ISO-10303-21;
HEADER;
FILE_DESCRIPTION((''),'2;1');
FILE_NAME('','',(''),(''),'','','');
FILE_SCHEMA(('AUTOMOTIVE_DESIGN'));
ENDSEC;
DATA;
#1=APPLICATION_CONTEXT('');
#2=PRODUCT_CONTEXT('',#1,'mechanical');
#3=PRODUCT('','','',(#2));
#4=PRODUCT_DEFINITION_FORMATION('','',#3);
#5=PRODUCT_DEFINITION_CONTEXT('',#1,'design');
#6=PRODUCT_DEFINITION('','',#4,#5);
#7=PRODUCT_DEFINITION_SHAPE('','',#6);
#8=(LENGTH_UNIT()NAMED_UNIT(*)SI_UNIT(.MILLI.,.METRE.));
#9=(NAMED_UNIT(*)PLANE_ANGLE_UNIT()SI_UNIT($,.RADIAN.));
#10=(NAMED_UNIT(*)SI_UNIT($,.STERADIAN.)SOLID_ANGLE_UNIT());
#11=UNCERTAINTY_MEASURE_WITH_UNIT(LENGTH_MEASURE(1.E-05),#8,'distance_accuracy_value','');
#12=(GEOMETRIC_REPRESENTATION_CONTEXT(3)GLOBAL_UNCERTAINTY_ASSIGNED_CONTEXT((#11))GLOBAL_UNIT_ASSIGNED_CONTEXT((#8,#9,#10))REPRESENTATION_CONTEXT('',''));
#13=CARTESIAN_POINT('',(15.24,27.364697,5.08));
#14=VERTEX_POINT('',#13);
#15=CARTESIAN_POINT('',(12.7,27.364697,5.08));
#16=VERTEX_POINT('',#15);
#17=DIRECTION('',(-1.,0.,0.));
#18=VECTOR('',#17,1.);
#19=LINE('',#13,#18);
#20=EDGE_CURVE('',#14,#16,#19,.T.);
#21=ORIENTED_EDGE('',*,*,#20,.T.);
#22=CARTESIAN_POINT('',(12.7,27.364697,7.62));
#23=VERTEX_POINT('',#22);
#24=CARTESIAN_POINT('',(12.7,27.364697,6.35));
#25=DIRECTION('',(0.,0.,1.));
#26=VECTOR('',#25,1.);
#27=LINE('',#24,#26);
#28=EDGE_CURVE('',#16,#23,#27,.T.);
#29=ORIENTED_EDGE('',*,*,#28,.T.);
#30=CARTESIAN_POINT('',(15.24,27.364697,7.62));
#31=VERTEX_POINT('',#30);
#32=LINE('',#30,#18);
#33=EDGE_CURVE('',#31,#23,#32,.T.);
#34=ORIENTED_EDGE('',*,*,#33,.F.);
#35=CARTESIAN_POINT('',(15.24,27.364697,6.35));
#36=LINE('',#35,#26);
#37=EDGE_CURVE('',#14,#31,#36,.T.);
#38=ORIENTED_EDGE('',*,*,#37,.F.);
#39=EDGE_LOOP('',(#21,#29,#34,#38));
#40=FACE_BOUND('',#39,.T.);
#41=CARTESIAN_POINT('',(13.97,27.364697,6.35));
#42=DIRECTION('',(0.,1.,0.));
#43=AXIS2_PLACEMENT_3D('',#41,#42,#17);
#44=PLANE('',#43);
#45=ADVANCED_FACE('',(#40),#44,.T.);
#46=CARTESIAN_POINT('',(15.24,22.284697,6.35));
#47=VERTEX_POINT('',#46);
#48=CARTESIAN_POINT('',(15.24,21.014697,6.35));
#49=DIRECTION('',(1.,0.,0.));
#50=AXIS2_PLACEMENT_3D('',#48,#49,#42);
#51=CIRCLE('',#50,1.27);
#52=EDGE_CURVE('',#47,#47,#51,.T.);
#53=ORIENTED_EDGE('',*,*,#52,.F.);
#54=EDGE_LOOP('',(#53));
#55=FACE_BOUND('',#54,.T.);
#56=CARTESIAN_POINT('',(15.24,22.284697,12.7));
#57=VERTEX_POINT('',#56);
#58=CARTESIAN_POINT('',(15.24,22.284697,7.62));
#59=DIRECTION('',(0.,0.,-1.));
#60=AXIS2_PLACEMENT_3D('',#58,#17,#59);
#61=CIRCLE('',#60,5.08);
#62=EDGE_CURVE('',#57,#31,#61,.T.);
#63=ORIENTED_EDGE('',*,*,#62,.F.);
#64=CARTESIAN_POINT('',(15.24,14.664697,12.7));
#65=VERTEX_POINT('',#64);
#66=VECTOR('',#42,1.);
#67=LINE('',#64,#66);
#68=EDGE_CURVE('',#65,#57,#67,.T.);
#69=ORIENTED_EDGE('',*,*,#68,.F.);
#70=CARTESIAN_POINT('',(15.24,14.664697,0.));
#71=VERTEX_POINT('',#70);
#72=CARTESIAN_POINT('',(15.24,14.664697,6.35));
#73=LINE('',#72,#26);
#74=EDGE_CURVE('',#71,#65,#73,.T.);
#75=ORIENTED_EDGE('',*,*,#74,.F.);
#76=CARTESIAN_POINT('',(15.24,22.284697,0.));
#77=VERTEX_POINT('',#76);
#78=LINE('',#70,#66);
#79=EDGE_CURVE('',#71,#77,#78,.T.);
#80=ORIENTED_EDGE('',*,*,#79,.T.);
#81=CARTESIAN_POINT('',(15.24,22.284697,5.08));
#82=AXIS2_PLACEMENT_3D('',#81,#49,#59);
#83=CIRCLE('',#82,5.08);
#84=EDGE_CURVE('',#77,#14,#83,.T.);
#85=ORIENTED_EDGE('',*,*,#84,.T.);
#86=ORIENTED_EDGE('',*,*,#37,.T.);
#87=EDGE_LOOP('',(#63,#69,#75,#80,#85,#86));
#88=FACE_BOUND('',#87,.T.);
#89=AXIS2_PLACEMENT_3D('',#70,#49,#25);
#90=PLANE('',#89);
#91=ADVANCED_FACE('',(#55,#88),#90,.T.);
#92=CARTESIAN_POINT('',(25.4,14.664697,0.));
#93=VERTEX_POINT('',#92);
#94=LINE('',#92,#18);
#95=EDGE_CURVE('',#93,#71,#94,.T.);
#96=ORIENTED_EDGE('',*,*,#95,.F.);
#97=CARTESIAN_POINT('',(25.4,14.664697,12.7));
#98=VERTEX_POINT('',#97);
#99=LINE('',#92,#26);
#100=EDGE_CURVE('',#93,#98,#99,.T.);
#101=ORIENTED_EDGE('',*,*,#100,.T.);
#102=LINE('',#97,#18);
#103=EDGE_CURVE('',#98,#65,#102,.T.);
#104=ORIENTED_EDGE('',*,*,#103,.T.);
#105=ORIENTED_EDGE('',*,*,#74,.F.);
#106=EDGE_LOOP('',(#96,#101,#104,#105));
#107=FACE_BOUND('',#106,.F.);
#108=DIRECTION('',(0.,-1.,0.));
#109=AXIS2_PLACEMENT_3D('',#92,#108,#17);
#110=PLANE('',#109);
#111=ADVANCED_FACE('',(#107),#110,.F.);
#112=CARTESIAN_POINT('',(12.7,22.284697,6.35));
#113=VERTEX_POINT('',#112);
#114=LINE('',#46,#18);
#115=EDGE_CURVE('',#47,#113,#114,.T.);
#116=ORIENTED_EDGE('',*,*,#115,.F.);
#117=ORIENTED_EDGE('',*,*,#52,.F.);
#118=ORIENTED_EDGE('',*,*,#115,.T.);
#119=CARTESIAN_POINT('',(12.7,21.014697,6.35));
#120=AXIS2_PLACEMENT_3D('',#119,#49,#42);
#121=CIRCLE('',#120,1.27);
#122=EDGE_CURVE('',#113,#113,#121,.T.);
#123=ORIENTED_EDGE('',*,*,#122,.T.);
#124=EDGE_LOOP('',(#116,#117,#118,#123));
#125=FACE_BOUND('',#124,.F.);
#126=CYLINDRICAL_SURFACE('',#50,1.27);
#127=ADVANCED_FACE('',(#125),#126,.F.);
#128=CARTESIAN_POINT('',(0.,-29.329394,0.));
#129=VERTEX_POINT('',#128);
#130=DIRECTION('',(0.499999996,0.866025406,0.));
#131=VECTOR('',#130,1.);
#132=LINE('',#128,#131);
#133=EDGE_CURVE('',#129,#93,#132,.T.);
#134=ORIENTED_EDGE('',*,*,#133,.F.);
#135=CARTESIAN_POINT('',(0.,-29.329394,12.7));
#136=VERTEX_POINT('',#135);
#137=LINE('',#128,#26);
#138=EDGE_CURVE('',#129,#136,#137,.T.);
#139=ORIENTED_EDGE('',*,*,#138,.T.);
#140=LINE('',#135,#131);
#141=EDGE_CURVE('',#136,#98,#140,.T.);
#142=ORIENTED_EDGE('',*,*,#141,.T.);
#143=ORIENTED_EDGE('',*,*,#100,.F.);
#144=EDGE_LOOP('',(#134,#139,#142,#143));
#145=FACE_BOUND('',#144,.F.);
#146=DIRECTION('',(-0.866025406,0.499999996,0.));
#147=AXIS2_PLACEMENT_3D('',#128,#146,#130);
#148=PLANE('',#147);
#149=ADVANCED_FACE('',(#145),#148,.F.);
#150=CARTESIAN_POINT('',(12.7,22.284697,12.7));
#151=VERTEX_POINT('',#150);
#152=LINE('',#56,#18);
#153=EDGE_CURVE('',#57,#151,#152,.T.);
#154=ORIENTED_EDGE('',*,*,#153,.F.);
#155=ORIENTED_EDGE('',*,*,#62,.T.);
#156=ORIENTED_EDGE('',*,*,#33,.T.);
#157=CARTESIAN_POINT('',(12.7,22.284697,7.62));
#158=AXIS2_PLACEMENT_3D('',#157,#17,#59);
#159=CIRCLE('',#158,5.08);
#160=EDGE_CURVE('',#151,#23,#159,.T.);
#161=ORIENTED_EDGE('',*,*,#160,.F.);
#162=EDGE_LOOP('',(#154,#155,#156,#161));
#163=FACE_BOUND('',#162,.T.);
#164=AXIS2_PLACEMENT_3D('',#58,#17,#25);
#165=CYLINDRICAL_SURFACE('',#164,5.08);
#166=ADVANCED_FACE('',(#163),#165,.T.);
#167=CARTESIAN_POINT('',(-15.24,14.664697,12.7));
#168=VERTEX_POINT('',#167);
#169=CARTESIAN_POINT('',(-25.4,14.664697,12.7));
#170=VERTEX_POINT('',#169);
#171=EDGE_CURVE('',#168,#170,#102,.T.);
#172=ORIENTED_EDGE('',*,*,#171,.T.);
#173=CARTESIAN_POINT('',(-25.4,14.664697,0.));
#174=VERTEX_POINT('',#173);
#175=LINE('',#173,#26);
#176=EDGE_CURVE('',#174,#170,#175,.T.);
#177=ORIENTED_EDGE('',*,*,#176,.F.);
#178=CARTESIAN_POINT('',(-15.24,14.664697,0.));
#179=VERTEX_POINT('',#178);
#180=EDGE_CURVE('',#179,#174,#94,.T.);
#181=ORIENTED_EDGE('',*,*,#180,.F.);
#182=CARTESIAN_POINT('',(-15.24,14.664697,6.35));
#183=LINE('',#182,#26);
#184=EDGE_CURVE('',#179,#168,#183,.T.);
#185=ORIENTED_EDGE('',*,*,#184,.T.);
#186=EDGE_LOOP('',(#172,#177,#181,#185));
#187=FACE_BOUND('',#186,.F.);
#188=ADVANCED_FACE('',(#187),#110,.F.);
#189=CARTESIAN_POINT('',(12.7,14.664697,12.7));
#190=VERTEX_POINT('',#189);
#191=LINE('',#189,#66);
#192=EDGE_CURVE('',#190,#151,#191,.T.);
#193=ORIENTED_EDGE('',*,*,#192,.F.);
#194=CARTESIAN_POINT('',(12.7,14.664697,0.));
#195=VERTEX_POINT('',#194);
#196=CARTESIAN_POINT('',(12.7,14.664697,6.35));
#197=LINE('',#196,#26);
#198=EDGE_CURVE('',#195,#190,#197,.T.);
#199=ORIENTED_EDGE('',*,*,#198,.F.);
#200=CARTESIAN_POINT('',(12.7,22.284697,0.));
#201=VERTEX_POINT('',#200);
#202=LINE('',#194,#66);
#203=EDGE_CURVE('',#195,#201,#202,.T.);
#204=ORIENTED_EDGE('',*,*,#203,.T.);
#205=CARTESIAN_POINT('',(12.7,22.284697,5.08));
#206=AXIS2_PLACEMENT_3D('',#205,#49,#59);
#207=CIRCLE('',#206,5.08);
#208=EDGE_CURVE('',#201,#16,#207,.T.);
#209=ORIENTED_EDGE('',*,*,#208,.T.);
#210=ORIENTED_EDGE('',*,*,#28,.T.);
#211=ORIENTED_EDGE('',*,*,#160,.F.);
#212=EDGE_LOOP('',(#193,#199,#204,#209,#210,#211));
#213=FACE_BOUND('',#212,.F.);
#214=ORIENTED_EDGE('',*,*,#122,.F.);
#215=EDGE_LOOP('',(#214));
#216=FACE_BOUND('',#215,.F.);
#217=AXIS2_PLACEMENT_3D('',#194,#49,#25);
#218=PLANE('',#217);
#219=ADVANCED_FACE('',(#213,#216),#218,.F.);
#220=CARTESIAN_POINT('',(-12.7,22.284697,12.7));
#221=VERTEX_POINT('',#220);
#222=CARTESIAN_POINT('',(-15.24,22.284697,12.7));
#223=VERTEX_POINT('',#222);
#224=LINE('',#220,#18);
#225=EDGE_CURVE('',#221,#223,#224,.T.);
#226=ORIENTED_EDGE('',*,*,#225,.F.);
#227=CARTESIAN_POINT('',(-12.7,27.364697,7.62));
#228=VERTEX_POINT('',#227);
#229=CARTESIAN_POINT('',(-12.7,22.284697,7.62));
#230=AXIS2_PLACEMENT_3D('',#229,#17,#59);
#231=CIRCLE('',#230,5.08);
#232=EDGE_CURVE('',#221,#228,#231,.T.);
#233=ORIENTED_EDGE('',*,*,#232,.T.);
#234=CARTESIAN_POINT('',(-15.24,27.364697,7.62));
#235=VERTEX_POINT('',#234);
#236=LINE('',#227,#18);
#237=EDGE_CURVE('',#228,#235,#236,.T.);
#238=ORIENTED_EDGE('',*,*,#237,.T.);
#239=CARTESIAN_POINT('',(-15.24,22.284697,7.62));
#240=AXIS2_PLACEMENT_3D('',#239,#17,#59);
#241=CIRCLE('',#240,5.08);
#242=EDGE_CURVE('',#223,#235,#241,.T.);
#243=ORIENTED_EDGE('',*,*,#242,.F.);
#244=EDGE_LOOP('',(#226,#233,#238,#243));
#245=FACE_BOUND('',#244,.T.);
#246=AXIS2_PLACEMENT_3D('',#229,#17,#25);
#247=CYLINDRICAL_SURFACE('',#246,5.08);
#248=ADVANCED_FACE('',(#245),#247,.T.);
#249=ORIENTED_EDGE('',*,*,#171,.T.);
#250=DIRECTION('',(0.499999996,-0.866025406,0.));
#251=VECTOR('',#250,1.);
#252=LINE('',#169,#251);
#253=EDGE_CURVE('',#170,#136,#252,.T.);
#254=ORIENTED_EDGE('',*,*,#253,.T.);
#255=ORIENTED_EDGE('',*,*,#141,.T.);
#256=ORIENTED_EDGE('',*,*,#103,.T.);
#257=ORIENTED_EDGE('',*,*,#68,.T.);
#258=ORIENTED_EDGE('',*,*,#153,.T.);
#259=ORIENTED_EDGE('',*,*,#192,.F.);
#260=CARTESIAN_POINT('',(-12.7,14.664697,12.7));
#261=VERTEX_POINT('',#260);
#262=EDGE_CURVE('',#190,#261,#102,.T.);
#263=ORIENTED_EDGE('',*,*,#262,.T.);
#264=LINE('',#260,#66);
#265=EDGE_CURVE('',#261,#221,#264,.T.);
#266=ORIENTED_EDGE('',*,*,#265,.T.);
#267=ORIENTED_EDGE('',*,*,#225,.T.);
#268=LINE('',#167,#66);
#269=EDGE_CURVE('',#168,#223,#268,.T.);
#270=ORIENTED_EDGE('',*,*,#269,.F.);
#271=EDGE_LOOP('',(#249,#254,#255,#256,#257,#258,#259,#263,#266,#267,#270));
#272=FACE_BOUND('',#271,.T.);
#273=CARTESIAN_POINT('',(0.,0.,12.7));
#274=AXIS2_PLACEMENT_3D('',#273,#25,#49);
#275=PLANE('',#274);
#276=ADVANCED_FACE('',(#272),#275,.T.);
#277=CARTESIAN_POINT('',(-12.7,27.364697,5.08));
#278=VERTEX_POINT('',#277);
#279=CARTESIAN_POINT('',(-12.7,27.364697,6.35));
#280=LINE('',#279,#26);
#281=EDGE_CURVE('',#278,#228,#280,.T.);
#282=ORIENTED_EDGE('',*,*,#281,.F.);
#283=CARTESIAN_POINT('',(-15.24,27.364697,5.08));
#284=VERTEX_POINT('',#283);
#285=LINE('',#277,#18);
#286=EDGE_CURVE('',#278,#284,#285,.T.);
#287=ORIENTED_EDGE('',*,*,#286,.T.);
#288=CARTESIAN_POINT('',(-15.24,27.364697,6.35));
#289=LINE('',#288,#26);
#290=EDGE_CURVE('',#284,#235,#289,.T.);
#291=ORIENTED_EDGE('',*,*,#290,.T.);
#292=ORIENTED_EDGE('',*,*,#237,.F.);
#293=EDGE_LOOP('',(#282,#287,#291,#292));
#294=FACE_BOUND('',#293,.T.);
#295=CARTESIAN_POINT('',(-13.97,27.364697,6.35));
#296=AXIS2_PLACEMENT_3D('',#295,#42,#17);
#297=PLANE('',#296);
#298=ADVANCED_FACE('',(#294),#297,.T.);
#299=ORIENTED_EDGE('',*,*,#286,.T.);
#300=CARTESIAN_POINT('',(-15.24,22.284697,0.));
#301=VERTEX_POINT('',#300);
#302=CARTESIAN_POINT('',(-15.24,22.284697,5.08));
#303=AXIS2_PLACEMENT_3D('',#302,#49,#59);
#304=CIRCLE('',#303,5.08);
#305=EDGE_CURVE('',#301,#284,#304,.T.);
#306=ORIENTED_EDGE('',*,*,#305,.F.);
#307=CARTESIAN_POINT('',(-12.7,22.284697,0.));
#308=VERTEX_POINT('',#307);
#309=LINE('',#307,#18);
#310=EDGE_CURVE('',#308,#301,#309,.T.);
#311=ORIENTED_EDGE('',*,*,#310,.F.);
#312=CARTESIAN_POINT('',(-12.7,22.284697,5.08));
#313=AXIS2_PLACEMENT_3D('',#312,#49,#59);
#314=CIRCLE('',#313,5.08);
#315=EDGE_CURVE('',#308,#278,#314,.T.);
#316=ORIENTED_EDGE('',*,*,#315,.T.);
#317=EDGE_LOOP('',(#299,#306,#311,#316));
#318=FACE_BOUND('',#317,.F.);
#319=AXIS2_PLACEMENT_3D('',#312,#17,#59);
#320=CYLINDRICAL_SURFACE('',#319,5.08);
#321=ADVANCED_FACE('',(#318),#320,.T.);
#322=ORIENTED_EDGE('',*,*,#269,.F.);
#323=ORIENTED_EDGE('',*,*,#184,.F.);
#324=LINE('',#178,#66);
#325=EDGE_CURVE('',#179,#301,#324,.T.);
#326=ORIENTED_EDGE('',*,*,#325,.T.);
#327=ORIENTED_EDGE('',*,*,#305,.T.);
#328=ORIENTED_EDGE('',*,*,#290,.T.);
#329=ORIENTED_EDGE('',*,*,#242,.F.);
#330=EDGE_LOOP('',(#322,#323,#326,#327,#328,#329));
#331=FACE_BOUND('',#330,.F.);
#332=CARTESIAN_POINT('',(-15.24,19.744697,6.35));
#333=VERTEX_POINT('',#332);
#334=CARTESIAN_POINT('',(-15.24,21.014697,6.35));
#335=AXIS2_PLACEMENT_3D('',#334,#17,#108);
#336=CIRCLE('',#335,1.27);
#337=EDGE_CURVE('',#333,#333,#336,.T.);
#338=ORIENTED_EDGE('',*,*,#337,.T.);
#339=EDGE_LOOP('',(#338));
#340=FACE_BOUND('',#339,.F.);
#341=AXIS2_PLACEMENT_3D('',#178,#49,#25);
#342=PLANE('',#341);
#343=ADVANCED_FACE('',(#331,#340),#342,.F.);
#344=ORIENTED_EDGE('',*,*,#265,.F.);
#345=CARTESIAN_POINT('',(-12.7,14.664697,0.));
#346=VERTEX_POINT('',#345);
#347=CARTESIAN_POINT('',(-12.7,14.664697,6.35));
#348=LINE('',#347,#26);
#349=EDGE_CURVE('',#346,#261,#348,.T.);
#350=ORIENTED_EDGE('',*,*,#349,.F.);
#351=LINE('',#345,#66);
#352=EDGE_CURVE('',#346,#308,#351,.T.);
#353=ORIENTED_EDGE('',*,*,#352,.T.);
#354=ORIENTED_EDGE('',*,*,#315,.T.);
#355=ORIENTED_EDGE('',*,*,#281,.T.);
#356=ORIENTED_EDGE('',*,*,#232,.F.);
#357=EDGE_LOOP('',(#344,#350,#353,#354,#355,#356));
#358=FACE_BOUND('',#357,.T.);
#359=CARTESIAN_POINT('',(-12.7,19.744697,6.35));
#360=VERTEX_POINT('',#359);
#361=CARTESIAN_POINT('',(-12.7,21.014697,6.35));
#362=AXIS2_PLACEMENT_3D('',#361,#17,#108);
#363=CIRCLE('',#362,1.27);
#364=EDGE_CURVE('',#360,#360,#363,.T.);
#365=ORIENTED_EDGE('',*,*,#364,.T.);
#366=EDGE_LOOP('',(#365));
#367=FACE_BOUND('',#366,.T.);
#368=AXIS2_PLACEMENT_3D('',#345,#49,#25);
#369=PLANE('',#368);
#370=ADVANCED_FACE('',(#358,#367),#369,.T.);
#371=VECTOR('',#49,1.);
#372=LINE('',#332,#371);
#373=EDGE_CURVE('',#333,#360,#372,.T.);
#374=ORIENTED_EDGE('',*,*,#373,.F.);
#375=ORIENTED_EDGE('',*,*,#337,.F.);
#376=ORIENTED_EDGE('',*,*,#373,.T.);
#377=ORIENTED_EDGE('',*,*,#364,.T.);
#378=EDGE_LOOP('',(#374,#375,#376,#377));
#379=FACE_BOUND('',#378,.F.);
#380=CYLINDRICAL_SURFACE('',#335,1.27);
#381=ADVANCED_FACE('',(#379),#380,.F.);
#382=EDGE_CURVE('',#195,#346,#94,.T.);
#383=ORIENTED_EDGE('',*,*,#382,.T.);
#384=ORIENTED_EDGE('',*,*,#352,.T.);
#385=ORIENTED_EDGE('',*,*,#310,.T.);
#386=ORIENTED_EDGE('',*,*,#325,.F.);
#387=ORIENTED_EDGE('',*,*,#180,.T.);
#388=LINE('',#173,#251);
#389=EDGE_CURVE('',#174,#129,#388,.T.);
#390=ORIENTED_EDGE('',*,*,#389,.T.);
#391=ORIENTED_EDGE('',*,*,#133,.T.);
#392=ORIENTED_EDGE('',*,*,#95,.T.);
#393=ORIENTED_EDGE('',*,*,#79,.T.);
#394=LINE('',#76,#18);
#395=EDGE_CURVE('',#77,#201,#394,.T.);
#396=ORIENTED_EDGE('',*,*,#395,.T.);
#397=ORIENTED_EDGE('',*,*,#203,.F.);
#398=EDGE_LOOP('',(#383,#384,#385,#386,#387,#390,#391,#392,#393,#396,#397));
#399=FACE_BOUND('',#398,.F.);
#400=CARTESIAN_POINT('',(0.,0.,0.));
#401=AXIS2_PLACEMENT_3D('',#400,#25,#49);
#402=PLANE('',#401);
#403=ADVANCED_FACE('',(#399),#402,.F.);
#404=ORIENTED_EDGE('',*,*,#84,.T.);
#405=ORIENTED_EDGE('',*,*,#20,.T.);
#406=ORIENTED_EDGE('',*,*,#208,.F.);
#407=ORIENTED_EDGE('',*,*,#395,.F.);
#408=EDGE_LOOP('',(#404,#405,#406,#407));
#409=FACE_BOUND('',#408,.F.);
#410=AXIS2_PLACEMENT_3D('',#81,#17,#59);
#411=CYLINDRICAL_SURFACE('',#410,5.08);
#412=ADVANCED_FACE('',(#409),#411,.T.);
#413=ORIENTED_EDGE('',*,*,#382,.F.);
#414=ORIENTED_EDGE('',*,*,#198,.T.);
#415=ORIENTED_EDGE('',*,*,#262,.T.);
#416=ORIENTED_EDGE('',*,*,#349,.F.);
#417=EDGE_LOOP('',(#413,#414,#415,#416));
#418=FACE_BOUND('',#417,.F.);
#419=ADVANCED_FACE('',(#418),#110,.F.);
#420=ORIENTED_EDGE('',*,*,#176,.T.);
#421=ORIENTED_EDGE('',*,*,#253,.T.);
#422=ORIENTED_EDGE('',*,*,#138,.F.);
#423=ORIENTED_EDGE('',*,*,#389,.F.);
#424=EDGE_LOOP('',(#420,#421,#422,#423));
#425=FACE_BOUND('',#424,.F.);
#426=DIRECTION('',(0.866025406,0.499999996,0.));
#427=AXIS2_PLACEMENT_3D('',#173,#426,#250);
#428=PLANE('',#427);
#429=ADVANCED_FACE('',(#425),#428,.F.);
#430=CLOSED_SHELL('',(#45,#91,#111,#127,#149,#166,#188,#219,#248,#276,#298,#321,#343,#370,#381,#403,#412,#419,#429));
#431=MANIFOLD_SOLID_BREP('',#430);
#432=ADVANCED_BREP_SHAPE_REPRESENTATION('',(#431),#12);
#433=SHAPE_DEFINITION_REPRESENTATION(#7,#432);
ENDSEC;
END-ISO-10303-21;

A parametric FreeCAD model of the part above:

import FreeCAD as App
import Part
import Sketcher
Q = App.Units.Quantity


def edges_at(feature, points):
    """Names of the edges that pass closest to the given points."""
    edges = feature.Shape.Edges
    near = lambda p: min(range(len(edges)), key=lambda i: edges[i].distToShape(Part.Vertex(*p))[0])
    return sorted({f"Edge{near(p) + 1}" for p in points})


def add_polygon(sketch, points):
    """Adds a closed chain of lines whose ends are joined by coincident constraints."""
    first, n = sketch.GeometryCount, len(points)
    for a, b in zip(points, points[1:] + points[:1]):
        sketch.addGeometry(Part.LineSegment(App.Vector(*a, 0), App.Vector(*b, 0)), False)
    for i in range(n):
        sketch.addConstraint(Sketcher.Constraint("Coincident", first + i, 2, first + (i + 1) % n, 1))

doc = App.newDocument("Part")
params = doc.addObject("Spreadsheet::Sheet", "Params")
for row, (alias, value) in enumerate([
    ("sketch1_width", "2 in"),
    ("sketch1_length", "2 in"),
    ("pad1_length", "0.5 in"),
    ("sketch2_width", "0.1 in"),
    ("sketch2_height", "0.5 in"),
    ("pad2_length", "0.5 in"),
    ("sketch3_diameter", "0.1 in"),
    ("pocket1_length", "1 in"),
    ("sketch4_diameter", "0.1 in"),
    ("pocket2_length", "1 in"),
    ("fillet_radius", "0.2 in"),
], start=1):
    params.set(f"A{row}", alias)
    params.set(f"B{row}", "=" + value)
    params.setAlias(f"B{row}", alias)

body = doc.addObject("PartDesign::Body", "Body")

# Sketch on XY plane
sketch1 = body.newObject("Sketcher::SketchObject", "Sketch")
sketch1.AttachmentSupport = (doc.getObject("XY_Plane"), [""])
sketch1.MapMode = "FlatFace"
add_polygon(sketch1, [(-25, 15), (0, -29), (25, 15)])  # lines 0-2
sketch1.addConstraint(Sketcher.Constraint("Horizontal", 2))
sketch1.addConstraint(Sketcher.Constraint("PointOnObject", 0, 2, -2))
sketch1.addConstraint(Sketcher.Constraint("Equal", 0, 1))
sketch1.addConstraint(Sketcher.Constraint("DistanceX", 2, 2, 2, 1, Q("2 in")))
sketch1.addConstraint(Sketcher.Constraint("Distance", 0, Q("2 in")))
sketch1.addConstraint(Sketcher.Constraint("DistanceY", 0, 2, -1, 1, Q("29.329394 mm")))
sketch1.setExpression("Constraints[6]", "Params.sketch1_width")
sketch1.setExpression("Constraints[7]", "Params.sketch1_length")
pad1 = body.newObject("PartDesign::Pad", "Pad")
pad1.Profile = sketch1
pad1.setExpression("Length", "Params.pad1_length")

# Sketch on XZ plane
sketch2 = body.newObject("Sketcher::SketchObject", "Sketch001")
sketch2.AttachmentSupport = (doc.getObject("XZ_Plane"), [""])
sketch2.MapMode = "FlatFace"
sketch2.AttachmentOffset = App.Placement(App.Vector(0, 0, -14.664697), App.Rotation())
add_polygon(sketch2, [(15.2, 12.7), (15.2, 0), (12.7, 0), (12.7, 12.7)])  # lines 0-3
add_polygon(sketch2, [(-12.7, 12.7), (-12.7, 0), (-15.2, 0), (-15.2, 12.7)])  # lines 4-7
sketch2.addConstraint(Sketcher.Constraint("Vertical", 0))
sketch2.addConstraint(Sketcher.Constraint("Horizontal", 1))
sketch2.addConstraint(Sketcher.Constraint("Vertical", 2))
sketch2.addConstraint(Sketcher.Constraint("Horizontal", 3))
sketch2.addConstraint(Sketcher.Constraint("Vertical", 4))
sketch2.addConstraint(Sketcher.Constraint("Horizontal", 5))
sketch2.addConstraint(Sketcher.Constraint("Vertical", 6))
sketch2.addConstraint(Sketcher.Constraint("Horizontal", 7))
sketch2.addConstraint(Sketcher.Constraint("Symmetric", 1, 2, 4, 2, -1, 1))
sketch2.addConstraint(Sketcher.Constraint("Symmetric", 0, 2, 5, 2, -2))
sketch2.addConstraint(Sketcher.Constraint("Horizontal", 3, 2, 6, 2))
sketch2.addConstraint(Sketcher.Constraint("DistanceX", 1, 2, 1, 1, Q("0.1 in")))
sketch2.addConstraint(Sketcher.Constraint("DistanceY", 0, 2, 0, 1, Q("0.5 in")))
sketch2.addConstraint(Sketcher.Constraint("DistanceX", 4, 2, 1, 2, Q("1 in")))
sketch2.setExpression("Constraints[19]", "Params.sketch2_width")
sketch2.setExpression("Constraints[20]", "Params.sketch2_height")
pad2 = body.newObject("PartDesign::Pad", "Pad001")
pad2.Profile = sketch2
pad2.setExpression("Length", "Params.pad2_length")
pad2.Reversed = True

# Sketch on YZ plane
sketch3 = body.newObject("Sketcher::SketchObject", "Sketch002")
sketch3.AttachmentSupport = (doc.getObject("YZ_Plane"), [""])
sketch3.MapMode = "FlatFace"
sketch3.AttachmentOffset = App.Placement(App.Vector(0, 0, 0.6 * 25.4), App.Rotation())
sketch3.addGeometry(Part.Circle(App.Vector(21, 6.3, 0), App.Vector(0, 0, 1), 1.3), False)
sketch3.addConstraint(Sketcher.Constraint("Diameter", 0, Q("0.1 in")))
sketch3.addConstraint(Sketcher.Constraint("DistanceY", -1, 1, 0, 3, Q("0.25 in")))
sketch3.addConstraint(Sketcher.Constraint("DistanceX", -1, 1, 0, 3, Q("21.014697 mm")))
sketch3.setExpression("Constraints[0]", "Params.sketch3_diameter")
pocket1 = body.newObject("PartDesign::Pocket", "Pocket")
pocket1.Profile = sketch3
pocket1.setExpression("Length", "Params.pocket1_length")

# Sketch on YZ plane
sketch4 = body.newObject("Sketcher::SketchObject", "Sketch003")
sketch4.AttachmentSupport = (doc.getObject("YZ_Plane"), [""])
sketch4.MapMode = "FlatFace"
sketch4.AttachmentOffset = App.Placement(App.Vector(0, 0, -0.6 * 25.4), App.Rotation())
sketch4.addGeometry(Part.Circle(App.Vector(21, 6.3, 0), App.Vector(0, 0, 1), 1.3), False)
sketch4.addConstraint(Sketcher.Constraint("Diameter", 0, Q("0.1 in")))
sketch4.addConstraint(Sketcher.Constraint("DistanceY", -1, 1, 0, 3, Q("0.25 in")))
sketch4.addConstraint(Sketcher.Constraint("DistanceX", -1, 1, 0, 3, Q("21.014697 mm")))
sketch4.setExpression("Constraints[0]", "Params.sketch4_diameter")
pocket2 = body.newObject("PartDesign::Pocket", "Pocket001")
pocket2.Profile = sketch4
pocket2.setExpression("Length", "Params.pocket2_length")
pocket2.Reversed = True
doc.recompute()

fillet = body.newObject("PartDesign::Fillet", "Fillet")
fillet.Base = (pocket2, edges_at(pocket2, [
    (13.97, 27.365, 12.7),
    (13.97, 27.365, 0),
    (-13.97, 27.365, 12.7),
    (-13.97, 27.365, 0),
]))
fillet.setExpression("Radius", "Params.fillet_radius")

doc.recompute()
